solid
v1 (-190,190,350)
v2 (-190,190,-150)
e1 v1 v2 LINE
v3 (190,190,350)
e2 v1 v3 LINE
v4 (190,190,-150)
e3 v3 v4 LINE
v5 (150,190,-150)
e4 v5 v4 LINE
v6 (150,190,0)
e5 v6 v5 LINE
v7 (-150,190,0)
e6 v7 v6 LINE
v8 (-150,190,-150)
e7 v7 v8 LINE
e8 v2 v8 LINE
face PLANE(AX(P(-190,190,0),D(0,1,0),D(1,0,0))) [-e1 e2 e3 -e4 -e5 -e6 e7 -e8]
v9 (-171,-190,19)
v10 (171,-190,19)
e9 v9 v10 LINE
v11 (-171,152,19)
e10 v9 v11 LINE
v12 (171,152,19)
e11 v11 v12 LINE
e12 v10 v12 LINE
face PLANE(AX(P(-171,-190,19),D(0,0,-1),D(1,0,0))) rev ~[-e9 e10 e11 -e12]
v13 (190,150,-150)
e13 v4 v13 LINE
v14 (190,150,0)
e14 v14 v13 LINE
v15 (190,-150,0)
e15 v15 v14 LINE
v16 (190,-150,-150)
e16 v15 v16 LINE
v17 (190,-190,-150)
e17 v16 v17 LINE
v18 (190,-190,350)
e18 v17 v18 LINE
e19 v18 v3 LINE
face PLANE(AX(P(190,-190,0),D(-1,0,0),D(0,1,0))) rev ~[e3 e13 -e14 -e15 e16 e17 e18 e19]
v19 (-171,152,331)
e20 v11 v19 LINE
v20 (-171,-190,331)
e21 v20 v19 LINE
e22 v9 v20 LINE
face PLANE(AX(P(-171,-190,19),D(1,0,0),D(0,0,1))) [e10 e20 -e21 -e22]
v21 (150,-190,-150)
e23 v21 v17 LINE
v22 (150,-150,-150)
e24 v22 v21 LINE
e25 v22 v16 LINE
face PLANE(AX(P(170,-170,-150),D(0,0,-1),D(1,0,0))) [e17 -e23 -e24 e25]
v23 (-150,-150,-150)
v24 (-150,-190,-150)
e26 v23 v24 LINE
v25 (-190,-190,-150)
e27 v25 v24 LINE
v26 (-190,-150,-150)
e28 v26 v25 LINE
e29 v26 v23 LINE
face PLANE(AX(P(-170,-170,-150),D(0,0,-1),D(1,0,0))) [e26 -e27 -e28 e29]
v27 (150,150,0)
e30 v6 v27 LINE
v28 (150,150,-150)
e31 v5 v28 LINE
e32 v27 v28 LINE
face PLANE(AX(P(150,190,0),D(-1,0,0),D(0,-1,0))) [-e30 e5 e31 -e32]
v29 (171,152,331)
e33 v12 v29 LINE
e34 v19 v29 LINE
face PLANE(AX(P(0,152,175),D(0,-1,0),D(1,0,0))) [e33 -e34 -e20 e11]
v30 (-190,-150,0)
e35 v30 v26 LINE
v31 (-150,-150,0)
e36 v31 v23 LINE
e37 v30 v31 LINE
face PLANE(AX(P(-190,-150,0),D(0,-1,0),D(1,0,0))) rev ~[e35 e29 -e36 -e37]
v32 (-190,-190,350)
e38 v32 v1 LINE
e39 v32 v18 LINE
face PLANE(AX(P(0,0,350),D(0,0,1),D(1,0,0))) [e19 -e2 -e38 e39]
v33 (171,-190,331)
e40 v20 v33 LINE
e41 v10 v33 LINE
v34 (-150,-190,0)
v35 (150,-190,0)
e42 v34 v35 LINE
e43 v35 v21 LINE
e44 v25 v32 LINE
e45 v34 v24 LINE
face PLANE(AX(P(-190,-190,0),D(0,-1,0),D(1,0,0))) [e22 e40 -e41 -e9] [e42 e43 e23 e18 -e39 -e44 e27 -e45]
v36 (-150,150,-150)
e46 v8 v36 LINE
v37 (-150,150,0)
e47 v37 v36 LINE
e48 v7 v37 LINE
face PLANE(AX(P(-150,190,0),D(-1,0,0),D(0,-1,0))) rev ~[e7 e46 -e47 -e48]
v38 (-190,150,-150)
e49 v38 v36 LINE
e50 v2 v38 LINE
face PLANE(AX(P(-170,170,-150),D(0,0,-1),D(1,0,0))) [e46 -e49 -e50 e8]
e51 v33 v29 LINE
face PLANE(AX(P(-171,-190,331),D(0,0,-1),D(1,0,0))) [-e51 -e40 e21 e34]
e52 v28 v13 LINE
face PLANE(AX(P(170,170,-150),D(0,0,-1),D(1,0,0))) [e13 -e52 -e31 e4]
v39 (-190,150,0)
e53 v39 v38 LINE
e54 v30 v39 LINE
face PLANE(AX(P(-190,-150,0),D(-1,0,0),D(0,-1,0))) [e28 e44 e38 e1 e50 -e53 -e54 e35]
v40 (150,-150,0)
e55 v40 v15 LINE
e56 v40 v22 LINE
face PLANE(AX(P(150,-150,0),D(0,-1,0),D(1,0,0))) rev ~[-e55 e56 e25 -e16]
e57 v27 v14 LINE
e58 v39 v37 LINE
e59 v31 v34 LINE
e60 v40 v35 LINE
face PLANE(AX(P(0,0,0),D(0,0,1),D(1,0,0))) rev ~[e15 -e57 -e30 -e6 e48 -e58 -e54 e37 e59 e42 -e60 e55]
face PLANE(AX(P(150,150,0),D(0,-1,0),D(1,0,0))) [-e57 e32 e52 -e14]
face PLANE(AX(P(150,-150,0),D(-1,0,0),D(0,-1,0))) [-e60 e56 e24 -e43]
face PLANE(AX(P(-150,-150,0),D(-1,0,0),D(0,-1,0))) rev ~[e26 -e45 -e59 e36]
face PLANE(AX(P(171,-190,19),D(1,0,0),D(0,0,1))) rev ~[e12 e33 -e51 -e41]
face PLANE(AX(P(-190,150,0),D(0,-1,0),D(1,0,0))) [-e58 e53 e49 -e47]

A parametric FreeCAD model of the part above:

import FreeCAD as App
import Part
import Sketcher

doc = App.newDocument("Part")
body = doc.addObject("PartDesign::Body", "Body")

# Sketch on XY plane
sketch1 = body.newObject("Sketcher::SketchObject", "Sketch")
sketch1.AttachmentSupport = (doc.getObject("XY_Plane"), [""])
sketch1.MapMode = "FlatFace"
sketch1.addGeometry(Part.LineSegment(App.Vector(-190, 190, 0), App.Vector(-190, -190, 0)), False)
sketch1.addGeometry(Part.LineSegment(App.Vector(-190, -190, 0), App.Vector(190, -190, 0)), False)
sketch1.addGeometry(Part.LineSegment(App.Vector(190, -190, 0), App.Vector(190, 190, 0)), False)
sketch1.addGeometry(Part.LineSegment(App.Vector(190, 190, 0), App.Vector(-190, 190, 0)), False)
sketch1.addConstraint(Sketcher.Constraint("Coincident", 0, 2, 1, 1))
sketch1.addConstraint(Sketcher.Constraint("Coincident", 1, 2, 2, 1))
sketch1.addConstraint(Sketcher.Constraint("Coincident", 2, 2, 3, 1))
sketch1.addConstraint(Sketcher.Constraint("Coincident", 3, 2, 0, 1))
sketch1.addConstraint(Sketcher.Constraint("Vertical", 0))
sketch1.addConstraint(Sketcher.Constraint("Horizontal", 1))
sketch1.addConstraint(Sketcher.Constraint("Vertical", 2))
sketch1.addConstraint(Sketcher.Constraint("Horizontal", 3))
sketch1.addConstraint(Sketcher.Constraint("Symmetric", 0, 2, 2, 2, -1, 1))
sketch1.addConstraint(Sketcher.Constraint("Equal", 3, 0))
sketch1.addConstraint(Sketcher.Constraint("DistanceX", 1, 1, 1, 2, 380.0))
pad1 = body.newObject("PartDesign::Pad", "Pad")
pad1.Profile = sketch1
pad1.Length = 350

# Sketch on XZ plane
sketch2 = body.newObject("Sketcher::SketchObject", "Sketch001")
sketch2.AttachmentSupport = (doc.getObject("XZ_Plane"), [""])
sketch2.MapMode = "FlatFace"
sketch2.AttachmentOffset = App.Placement(App.Vector(0, 0, 190), App.Rotation())
sketch2.addGeometry(Part.LineSegment(App.Vector(-171, 331, 0), App.Vector(-171, 19, 0)), False)
sketch2.addGeometry(Part.LineSegment(App.Vector(-171, 19, 0), App.Vector(171, 19, 0)), False)
sketch2.addGeometry(Part.LineSegment(App.Vector(171, 19, 0), App.Vector(171, 331, 0)), False)
sketch2.addGeometry(Part.LineSegment(App.Vector(171, 331, 0), App.Vector(-171, 331, 0)), False)
sketch2.addConstraint(Sketcher.Constraint("Coincident", 0, 2, 1, 1))
sketch2.addConstraint(Sketcher.Constraint("Coincident", 1, 2, 2, 1))
sketch2.addConstraint(Sketcher.Constraint("Coincident", 2, 2, 3, 1))
sketch2.addConstraint(Sketcher.Constraint("Coincident", 3, 2, 0, 1))
sketch2.addConstraint(Sketcher.Constraint("Vertical", 0))
sketch2.addConstraint(Sketcher.Constraint("Horizontal", 1))
sketch2.addConstraint(Sketcher.Constraint("Vertical", 2))
sketch2.addConstraint(Sketcher.Constraint("Horizontal", 3))
sketch2.addConstraint(Sketcher.Constraint("DistanceX", 1, 1, 1, 2, 342.0))
sketch2.addConstraint(Sketcher.Constraint("DistanceY", 0, 2, 0, 1, 312.0))
sketch2.addConstraint(Sketcher.Constraint("DistanceX", 0, 2, -1, 1, 171.0))
sketch2.addConstraint(Sketcher.Constraint("DistanceY", -1, 1, 0, 2, 19.0))
pocket1 = body.newObject("PartDesign::Pocket", "Pocket")
pocket1.Profile = sketch2
pocket1.Length = 342

# Sketch on XY plane
sketch3 = body.newObject("Sketcher::SketchObject", "Sketch002")
sketch3.AttachmentSupport = (doc.getObject("XY_Plane"), [""])
sketch3.MapMode = "FlatFace"
sketch3.addGeometry(Part.LineSegment(App.Vector(-190, -190, 0), App.Vector(-190, -150, 0)), False)
sketch3.addGeometry(Part.LineSegment(App.Vector(-190, -150, 0), App.Vector(-150, -150, 0)), False)
sketch3.addGeometry(Part.LineSegment(App.Vector(-150, -150, 0), App.Vector(-150, -190, 0)), False)
sketch3.addGeometry(Part.LineSegment(App.Vector(-150, -190, 0), App.Vector(-190, -190, 0)), False)
sketch3.addGeometry(Part.LineSegment(App.Vector(150, -190, 0), App.Vector(150, -150, 0)), False)
sketch3.addGeometry(Part.LineSegment(App.Vector(150, -150, 0), App.Vector(190, -150, 0)), False)
sketch3.addGeometry(Part.LineSegment(App.Vector(190, -150, 0), App.Vector(190, -190, 0)), False)
sketch3.addGeometry(Part.LineSegment(App.Vector(190, -190, 0), App.Vector(150, -190, 0)), False)
sketch3.addGeometry(Part.LineSegment(App.Vector(150, 150, 0), App.Vector(150, 190, 0)), False)
sketch3.addGeometry(Part.LineSegment(App.Vector(150, 190, 0), App.Vector(190, 190, 0)), False)
sketch3.addGeometry(Part.LineSegment(App.Vector(190, 190, 0), App.Vector(190, 150, 0)), False)
sketch3.addGeometry(Part.LineSegment(App.Vector(190, 150, 0), App.Vector(150, 150, 0)), False)
sketch3.addGeometry(Part.LineSegment(App.Vector(-190, 150, 0), App.Vector(-190, 190, 0)), False)
sketch3.addGeometry(Part.LineSegment(App.Vector(-190, 190, 0), App.Vector(-150, 190, 0)), False)
sketch3.addGeometry(Part.LineSegment(App.Vector(-150, 190, 0), App.Vector(-150, 150, 0)), False)
sketch3.addGeometry(Part.LineSegment(App.Vector(-150, 150, 0), App.Vector(-190, 150, 0)), False)
sketch3.addConstraint(Sketcher.Constraint("Coincident", 0, 2, 1, 1))
sketch3.addConstraint(Sketcher.Constraint("Coincident", 1, 2, 2, 1))
sketch3.addConstraint(Sketcher.Constraint("Coincident", 2, 2, 3, 1))
sketch3.addConstraint(Sketcher.Constraint("Coincident", 3, 2, 0, 1))
sketch3.addConstraint(Sketcher.Constraint("Coincident", 4, 2, 5, 1))
sketch3.addConstraint(Sketcher.Constraint("Coincident", 5, 2, 6, 1))
sketch3.addConstraint(Sketcher.Constraint("Coincident", 6, 2, 7, 1))
sketch3.addConstraint(Sketcher.Constraint("Coincident", 7, 2, 4, 1))
sketch3.addConstraint(Sketcher.Constraint("Coincident", 8, 2, 9, 1))
sketch3.addConstraint(Sketcher.Constraint("Coincident", 9, 2, 10, 1))
sketch3.addConstraint(Sketcher.Constraint("Coincident", 10, 2, 11, 1))
sketch3.addConstraint(Sketcher.Constraint("Coincident", 11, 2, 8, 1))
sketch3.addConstraint(Sketcher.Constraint("Coincident", 12, 2, 13, 1))
sketch3.addConstraint(Sketcher.Constraint("Coincident", 13, 2, 14, 1))
sketch3.addConstraint(Sketcher.Constraint("Coincident", 14, 2, 15, 1))
sketch3.addConstraint(Sketcher.Constraint("Coincident", 15, 2, 12, 1))
sketch3.addConstraint(Sketcher.Constraint("Vertical", 0))
sketch3.addConstraint(Sketcher.Constraint("Horizontal", 1))
sketch3.addConstraint(Sketcher.Constraint("Vertical", 2))
sketch3.addConstraint(Sketcher.Constraint("Horizontal", 3))
sketch3.addConstraint(Sketcher.Constraint("Vertical", 4))
sketch3.addConstraint(Sketcher.Constraint("Horizontal", 5))
sketch3.addConstraint(Sketcher.Constraint("Vertical", 6))
sketch3.addConstraint(Sketcher.Constraint("Horizontal", 7))
sketch3.addConstraint(Sketcher.Constraint("Vertical", 8))
sketch3.addConstraint(Sketcher.Constraint("Horizontal", 9))
sketch3.addConstraint(Sketcher.Constraint("Vertical", 10))
sketch3.addConstraint(Sketcher.Constraint("Horizontal", 11))
sketch3.addConstraint(Sketcher.Constraint("Vertical", 12))
sketch3.addConstraint(Sketcher.Constraint("Horizontal", 13))
sketch3.addConstraint(Sketcher.Constraint("Vertical", 14))
sketch3.addConstraint(Sketcher.Constraint("Horizontal", 15))
sketch3.addConstraint(Sketcher.Constraint("Symmetric", 2, 2, 8, 2, -1, 1))
sketch3.addConstraint(Sketcher.Constraint("Symmetric", 0, 2, 10, 2, -1, 1))
sketch3.addConstraint(Sketcher.Constraint("Symmetric", 6, 2, 12, 2, -1, 1))
sketch3.addConstraint(Sketcher.Constraint("Symmetric", 4, 2, 14, 2, -1, 1))
sketch3.addConstraint(Sketcher.Constraint("Symmetric", 1, 2, 4, 2, -2))
sketch3.addConstraint(Sketcher.Constraint("Symmetric", 3, 2, 6, 2, -2))
sketch3.addConstraint(Sketcher.Constraint("Equal", 15, 0))
sketch3.addConstraint(Sketcher.Constraint("DistanceX", 1, 1, 1, 2, 40.0))
sketch3.addConstraint(Sketcher.Constraint("DistanceX", 0, 2, -1, 1, 190.0))
sketch3.addConstraint(Sketcher.Constraint("DistanceY", 0, 2, -1, 1, 150.0))
pad2 = body.newObject("PartDesign::Pad", "Pad001")
pad2.Profile = sketch3
pad2.Length = 150
pad2.Reversed = True

doc.recompute()
